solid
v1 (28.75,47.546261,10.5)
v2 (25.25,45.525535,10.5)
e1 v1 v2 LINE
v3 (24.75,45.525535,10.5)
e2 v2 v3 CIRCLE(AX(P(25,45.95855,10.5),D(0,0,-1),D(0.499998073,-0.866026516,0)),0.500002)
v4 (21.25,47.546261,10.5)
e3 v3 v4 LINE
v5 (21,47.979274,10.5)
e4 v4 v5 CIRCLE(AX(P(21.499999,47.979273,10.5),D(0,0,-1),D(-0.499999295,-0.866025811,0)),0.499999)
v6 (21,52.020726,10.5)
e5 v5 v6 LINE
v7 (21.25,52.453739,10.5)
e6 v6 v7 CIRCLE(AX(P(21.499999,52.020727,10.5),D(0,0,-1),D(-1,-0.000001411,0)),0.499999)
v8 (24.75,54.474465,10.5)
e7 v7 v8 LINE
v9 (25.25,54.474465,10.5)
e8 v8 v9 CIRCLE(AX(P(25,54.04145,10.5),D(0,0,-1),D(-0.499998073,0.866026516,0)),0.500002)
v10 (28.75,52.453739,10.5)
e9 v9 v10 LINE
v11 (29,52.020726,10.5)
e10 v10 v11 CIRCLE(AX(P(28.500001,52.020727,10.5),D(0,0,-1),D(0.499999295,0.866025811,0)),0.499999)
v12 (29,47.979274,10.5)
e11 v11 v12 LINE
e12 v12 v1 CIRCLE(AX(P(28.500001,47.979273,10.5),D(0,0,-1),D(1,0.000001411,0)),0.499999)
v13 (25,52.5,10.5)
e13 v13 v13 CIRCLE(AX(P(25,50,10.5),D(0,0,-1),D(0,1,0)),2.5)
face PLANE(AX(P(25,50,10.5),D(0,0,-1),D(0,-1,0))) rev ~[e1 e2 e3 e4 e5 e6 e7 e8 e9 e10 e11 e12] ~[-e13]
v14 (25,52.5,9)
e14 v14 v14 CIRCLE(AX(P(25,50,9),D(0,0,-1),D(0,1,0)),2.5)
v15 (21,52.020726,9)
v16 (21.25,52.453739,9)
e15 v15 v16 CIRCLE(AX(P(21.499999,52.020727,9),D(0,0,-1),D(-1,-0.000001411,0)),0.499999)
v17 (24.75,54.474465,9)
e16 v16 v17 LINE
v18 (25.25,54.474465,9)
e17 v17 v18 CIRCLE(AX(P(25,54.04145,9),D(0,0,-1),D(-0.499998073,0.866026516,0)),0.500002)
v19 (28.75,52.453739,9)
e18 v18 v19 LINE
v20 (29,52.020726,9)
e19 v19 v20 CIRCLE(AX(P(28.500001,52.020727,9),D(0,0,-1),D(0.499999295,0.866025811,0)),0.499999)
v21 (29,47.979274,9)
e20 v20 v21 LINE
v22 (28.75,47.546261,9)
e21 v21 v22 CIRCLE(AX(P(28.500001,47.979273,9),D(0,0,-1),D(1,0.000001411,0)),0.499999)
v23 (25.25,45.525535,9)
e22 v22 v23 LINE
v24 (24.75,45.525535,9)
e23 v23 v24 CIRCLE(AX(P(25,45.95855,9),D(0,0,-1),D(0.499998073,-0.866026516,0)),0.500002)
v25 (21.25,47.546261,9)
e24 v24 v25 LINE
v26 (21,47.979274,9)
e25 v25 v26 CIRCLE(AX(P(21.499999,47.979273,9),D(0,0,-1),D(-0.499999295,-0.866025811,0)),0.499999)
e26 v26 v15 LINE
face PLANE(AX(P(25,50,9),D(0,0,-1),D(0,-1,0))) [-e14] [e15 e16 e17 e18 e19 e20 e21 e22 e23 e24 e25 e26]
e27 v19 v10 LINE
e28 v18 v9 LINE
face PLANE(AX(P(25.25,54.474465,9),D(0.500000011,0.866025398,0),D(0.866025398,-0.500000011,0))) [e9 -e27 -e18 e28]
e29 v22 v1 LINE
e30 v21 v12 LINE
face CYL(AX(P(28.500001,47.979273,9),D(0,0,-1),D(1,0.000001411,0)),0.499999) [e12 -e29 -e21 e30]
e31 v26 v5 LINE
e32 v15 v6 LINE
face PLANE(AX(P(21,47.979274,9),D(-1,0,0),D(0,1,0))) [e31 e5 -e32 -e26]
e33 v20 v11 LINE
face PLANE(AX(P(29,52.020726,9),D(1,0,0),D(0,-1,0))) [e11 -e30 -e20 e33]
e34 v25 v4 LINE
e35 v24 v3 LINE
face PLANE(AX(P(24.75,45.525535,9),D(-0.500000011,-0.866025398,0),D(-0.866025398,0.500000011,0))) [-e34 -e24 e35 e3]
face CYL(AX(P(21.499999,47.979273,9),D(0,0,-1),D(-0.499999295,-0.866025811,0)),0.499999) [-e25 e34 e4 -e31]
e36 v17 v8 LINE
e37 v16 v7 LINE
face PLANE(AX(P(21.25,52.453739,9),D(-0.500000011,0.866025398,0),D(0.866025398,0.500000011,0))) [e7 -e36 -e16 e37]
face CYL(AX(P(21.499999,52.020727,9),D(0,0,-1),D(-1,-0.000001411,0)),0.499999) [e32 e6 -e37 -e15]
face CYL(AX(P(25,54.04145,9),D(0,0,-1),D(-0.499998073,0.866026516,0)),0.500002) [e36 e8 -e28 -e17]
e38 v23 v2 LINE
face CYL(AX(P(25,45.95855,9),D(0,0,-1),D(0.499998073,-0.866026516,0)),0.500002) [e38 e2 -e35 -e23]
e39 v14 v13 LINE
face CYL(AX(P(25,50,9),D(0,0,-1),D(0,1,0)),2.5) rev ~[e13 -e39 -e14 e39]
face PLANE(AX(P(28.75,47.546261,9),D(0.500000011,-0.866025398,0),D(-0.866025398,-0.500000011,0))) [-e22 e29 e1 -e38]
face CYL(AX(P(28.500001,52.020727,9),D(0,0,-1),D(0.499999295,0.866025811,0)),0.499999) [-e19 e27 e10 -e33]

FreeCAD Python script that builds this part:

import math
import FreeCAD as App
import Part
import Sketcher
from FreeCAD import Vector
Q = App.Units.Quantity

doc = App.newDocument("Part")
body = doc.addObject("PartDesign::Body", "Body")

# Sketch on XY plane
sketch1 = doc.addObject("Sketcher::SketchObject", "Sketch")
body.addObject(sketch1)
sketch1.AttachmentSupport = (doc.XY_Plane, [""])
sketch1.MapMode = "FlatFace"
sketch1.addGeometry(Part.Circle(Vector(10, 0, 0), Vector(0, 0, 1), 2.5), False)
sketch1.addConstraint(Sketcher.Constraint("PointOnObject", 0, 3, -1))
sketch1.addConstraint(Sketcher.Constraint("Diameter", 0, 5.0))
sketch1.addConstraint(Sketcher.Constraint("DistanceX", -1, 1, 0, 3, 10.0))
pad1 = doc.addObject("PartDesign::Pad", "Pad")
body.addObject(pad1)
pad1.Profile = sketch1
pad1.Length = 1.5
body2 = doc.addObject("PartDesign::Body", "Body001")

# Sketch on XY plane
sketch2 = doc.addObject("Sketcher::SketchObject", "Sketch001")
body2.addObject(sketch2)
sketch2.AttachmentSupport = (doc.getObject("XY_Plane001"), [""])
sketch2.MapMode = "FlatFace"
sketch2.addGeometry(Part.LineSegment(Vector(14.47, 0.25, 0), Vector(12.45, 3.75, 0)), False)
sketch2.addGeometry(Part.ArcOfCircle(Part.Circle(Vector(12.02, 3.5, 0), Vector(0, 0, 1), 0.5), math.radians(30), math.radians(90)), False)
sketch2.addGeometry(Part.LineSegment(Vector(12.02, 4, 0), Vector(7.98, 4, 0)), False)
sketch2.addGeometry(Part.ArcOfCircle(Part.Circle(Vector(7.98, 3.5, 0), Vector(0, 0, 1), 0.5), math.radians(90), math.radians(150)), False)
sketch2.addGeometry(Part.LineSegment(Vector(7.55, 3.75, 0), Vector(5.53, 0.25, 0)), False)
sketch2.addGeometry(Part.ArcOfCircle(Part.Circle(Vector(5.96, 0, 0), Vector(0, 0, 1), 0.5), math.radians(150), math.radians(210)), False)
sketch2.addGeometry(Part.LineSegment(Vector(5.53, -0.25, 0), Vector(7.55, -3.75, 0)), False)
sketch2.addGeometry(Part.ArcOfCircle(Part.Circle(Vector(7.98, -3.5, 0), Vector(0, 0, 1), 0.5), math.radians(-150), math.radians(-90)), False)
sketch2.addGeometry(Part.LineSegment(Vector(7.98, -4, 0), Vector(12.02, -4, 0)), False)
sketch2.addGeometry(Part.ArcOfCircle(Part.Circle(Vector(12.02, -3.5, 0), Vector(0, 0, 1), 0.5), math.radians(-90), math.radians(-30)), False)
sketch2.addGeometry(Part.LineSegment(Vector(12.45, -3.75, 0), Vector(14.47, -0.25, 0)), False)
sketch2.addGeometry(Part.ArcOfCircle(Part.Circle(Vector(14.04, 0, 0), Vector(0, 0, 1), 0.5), math.radians(-30), math.radians(30)), False)
sketch2.addConstraint(Sketcher.Constraint("Tangent", 0, 2, 1, 1))
sketch2.addConstraint(Sketcher.Constraint("Tangent", 1, 2, 2, 1))
sketch2.addConstraint(Sketcher.Constraint("Tangent", 2, 2, 3, 1))
sketch2.addConstraint(Sketcher.Constraint("Tangent", 3, 2, 4, 1))
sketch2.addConstraint(Sketcher.Constraint("Coincident", 4, 2, 5, 1))
sketch2.addConstraint(Sketcher.Constraint("Coincident", 5, 2, 6, 1))
sketch2.addConstraint(Sketcher.Constraint("Tangent", 6, 2, 7, 1))
sketch2.addConstraint(Sketcher.Constraint("Tangent", 7, 2, 8, 1))
sketch2.addConstraint(Sketcher.Constraint("Tangent", 8, 2, 9, 1))
sketch2.addConstraint(Sketcher.Constraint("Tangent", 9, 2, 10, 1))
sketch2.addConstraint(Sketcher.Constraint("Coincident", 10, 2, 11, 1))
sketch2.addConstraint(Sketcher.Constraint("Coincident", 11, 2, 0, 1))
sketch2.addConstraint(Sketcher.Constraint("Horizontal", 2))
sketch2.addConstraint(Sketcher.Constraint("Horizontal", 8))
sketch2.addConstraint(Sketcher.Constraint("Equal", 1, 3))
sketch2.addConstraint(Sketcher.Constraint("Equal", 3, 7))
sketch2.addConstraint(Sketcher.Constraint("Equal", 7, 9))
sketch2.addConstraint(Sketcher.Constraint("Equal", 5, 11))
sketch2.addConstraint(Sketcher.Constraint("Symmetric", 3, 3, 7, 3, -1))
sketch2.addConstraint(Sketcher.Constraint("Symmetric", 4, 2, 5, 2, -1))
sketch2.addConstraint(Sketcher.Constraint("Symmetric", 0, 2, 9, 2, -1))
sketch2.addConstraint(Sketcher.Constraint("Parallel", 0, 6))
sketch2.addConstraint(Sketcher.Constraint("Horizontal", 5, 2, 10, 2))
sketch2.addConstraint(Sketcher.Constraint("Horizontal", 4, 2, 11, 2))
sketch2.addConstraint(Sketcher.Constraint("Radius", 1, 0.499999))
sketch2.addConstraint(Sketcher.Constraint("Radius", 5, 0.500002))
sketch2.addConstraint(Sketcher.Constraint("Angle", 0, Q("120.000001 deg")))
sketch2.addConstraint(Sketcher.Constraint("DistanceY", -1, 1, 1, 2, 4.0))
sketch2.addConstraint(Sketcher.Constraint("DistanceY", 5, 2, 3, 2, 4.0))
sketch2.addConstraint(Sketcher.Constraint("DistanceX", 2, 2, 2, 1, 4.041452))
sketch2.addConstraint(Sketcher.Constraint("DistanceX", -1, 1, 5, 3, 5.95855))
pad2 = doc.addObject("PartDesign::Pad", "Pad001")
body2.addObject(pad2)
pad2.Profile = sketch2
pad2.Length = 1.5
doc.recompute()

boolean = doc.addObject("PartDesign::Boolean", "Boolean")
body2.addObject(boolean)
boolean.Type = "Cut"
boolean.addObjects([body])
body3 = doc.addObject("PartDesign::Body", "Body002")
doc.recompute()

body2.Placement = App.Placement(Vector(25, 40, 9), App.Rotation(Vector(0, 0, 1), 90))
boolean2 = doc.addObject("PartDesign::Boolean", "Boolean001")
body3.addObject(boolean2)
boolean2.Type = "Fuse"
boolean2.addObjects([body2])

doc.recompute()
